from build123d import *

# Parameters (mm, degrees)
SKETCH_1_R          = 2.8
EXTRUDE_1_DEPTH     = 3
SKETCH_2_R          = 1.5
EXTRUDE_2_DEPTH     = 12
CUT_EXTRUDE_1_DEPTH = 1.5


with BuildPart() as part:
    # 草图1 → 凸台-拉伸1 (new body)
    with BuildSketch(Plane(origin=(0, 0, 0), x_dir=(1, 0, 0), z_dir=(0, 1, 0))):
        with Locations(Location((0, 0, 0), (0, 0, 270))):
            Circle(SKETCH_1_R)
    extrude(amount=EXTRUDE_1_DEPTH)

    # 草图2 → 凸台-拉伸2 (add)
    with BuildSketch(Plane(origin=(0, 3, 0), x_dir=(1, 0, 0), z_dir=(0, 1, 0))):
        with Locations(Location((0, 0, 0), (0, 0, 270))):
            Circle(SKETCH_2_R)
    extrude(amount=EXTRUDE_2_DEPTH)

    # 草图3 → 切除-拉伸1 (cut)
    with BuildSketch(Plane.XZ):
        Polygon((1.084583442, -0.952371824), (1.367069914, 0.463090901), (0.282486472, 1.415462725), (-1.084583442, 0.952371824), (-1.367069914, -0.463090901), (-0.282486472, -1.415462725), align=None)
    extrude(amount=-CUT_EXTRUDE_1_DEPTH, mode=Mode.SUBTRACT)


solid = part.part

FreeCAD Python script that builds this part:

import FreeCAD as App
import Part
import Sketcher

doc = App.newDocument("Part")
body = doc.addObject("PartDesign::Body", "Body")

# Sketch on XZ plane
sketch1 = body.newObject("Sketcher::SketchObject", "Sketch")
sketch1.AttachmentSupport = (doc.getObject("XZ_Plane"), [""])
sketch1.MapMode = "FlatFace"
sketch1.addGeometry(Part.Circle(App.Vector(0, 0, 0), App.Vector(0, 0, 1), 2.8), False)
sketch1.addConstraint(Sketcher.Constraint("Coincident", 0, 3, -1, 1))
sketch1.addConstraint(Sketcher.Constraint("Diameter", 0, 5.6))
pad1 = body.newObject("PartDesign::Pad", "Pad")
pad1.Profile = sketch1
pad1.Length = 3
pad1.Reversed = True

# Sketch on XZ plane
sketch2 = body.newObject("Sketcher::SketchObject", "Sketch001")
sketch2.AttachmentSupport = (doc.getObject("XZ_Plane"), [""])
sketch2.MapMode = "FlatFace"
sketch2.AttachmentOffset = App.Placement(App.Vector(0, 0, -3), App.Rotation())
sketch2.addGeometry(Part.Circle(App.Vector(0, 0, 0), App.Vector(0, 0, 1), 1.5), False)
sketch2.addConstraint(Sketcher.Constraint("Coincident", 0, 3, -1, 1))
sketch2.addConstraint(Sketcher.Constraint("Diameter", 0, 3.0))
pad2 = body.newObject("PartDesign::Pad", "Pad001")
pad2.Profile = sketch2
pad2.Length = 12
pad2.Reversed = True

# Sketch on XZ plane
sketch3 = body.newObject("Sketcher::SketchObject", "Sketch002")
sketch3.AttachmentSupport = (doc.getObject("XZ_Plane"), [""])
sketch3.MapMode = "FlatFace"
sketch3.addGeometry(Part.LineSegment(App.Vector(1.1, -1, 0), App.Vector(1.4, 0.5, 0)), False)
sketch3.addGeometry(Part.LineSegment(App.Vector(1.4, 0.5, 0), App.Vector(0.3, 1.4, 0)), False)
sketch3.addGeometry(Part.LineSegment(App.Vector(0.3, 1.4, 0), App.Vector(-1.1, 1, 0)), False)
sketch3.addGeometry(Part.LineSegment(App.Vector(-1.1, 1, 0), App.Vector(-1.4, -0.5, 0)), False)
sketch3.addGeometry(Part.LineSegment(App.Vector(-1.4, -0.5, 0), App.Vector(-0.3, -1.4, 0)), False)
sketch3.addGeometry(Part.LineSegment(App.Vector(-0.3, -1.4, 0), App.Vector(1.1, -1, 0)), False)
sketch3.addConstraint(Sketcher.Constraint("Coincident", 0, 2, 1, 1))
sketch3.addConstraint(Sketcher.Constraint("Coincident", 1, 2, 2, 1))
sketch3.addConstraint(Sketcher.Constraint("Coincident", 2, 2, 3, 1))
sketch3.addConstraint(Sketcher.Constraint("Coincident", 3, 2, 4, 1))
sketch3.addConstraint(Sketcher.Constraint("Coincident", 4, 2, 5, 1))
sketch3.addConstraint(Sketcher.Constraint("Coincident", 5, 2, 0, 1))
sketch3.addConstraint(Sketcher.Constraint("Symmetric", 0, 2, 3, 2, -1, 1))
sketch3.addConstraint(Sketcher.Constraint("Symmetric", 1, 2, 4, 2, -1, 1))
sketch3.addConstraint(Sketcher.Constraint("Symmetric", 2, 2, 5, 2, -1, 1))
sketch3.addConstraint(Sketcher.Constraint("Equal", 0, 1))
sketch3.addConstraint(Sketcher.Constraint("Equal", 1, 2))
sketch3.addConstraint(Sketcher.Constraint("DistanceX", -1, 1, 0, 2, 1.36707))
sketch3.addConstraint(Sketcher.Constraint("DistanceY", -1, 1, 0, 2, 0.463091))
sketch3.addConstraint(Sketcher.Constraint("DistanceY", -1, 1, 2, 2, 0.952372))
sketch3.addConstraint(Sketcher.Constraint("DistanceY", 0, 2, 1, 2, 0.952372))
pocket1 = body.newObject("PartDesign::Pocket", "Pocket")
pocket1.Profile = sketch3
pocket1.Length = 1.5

doc.recompute()
